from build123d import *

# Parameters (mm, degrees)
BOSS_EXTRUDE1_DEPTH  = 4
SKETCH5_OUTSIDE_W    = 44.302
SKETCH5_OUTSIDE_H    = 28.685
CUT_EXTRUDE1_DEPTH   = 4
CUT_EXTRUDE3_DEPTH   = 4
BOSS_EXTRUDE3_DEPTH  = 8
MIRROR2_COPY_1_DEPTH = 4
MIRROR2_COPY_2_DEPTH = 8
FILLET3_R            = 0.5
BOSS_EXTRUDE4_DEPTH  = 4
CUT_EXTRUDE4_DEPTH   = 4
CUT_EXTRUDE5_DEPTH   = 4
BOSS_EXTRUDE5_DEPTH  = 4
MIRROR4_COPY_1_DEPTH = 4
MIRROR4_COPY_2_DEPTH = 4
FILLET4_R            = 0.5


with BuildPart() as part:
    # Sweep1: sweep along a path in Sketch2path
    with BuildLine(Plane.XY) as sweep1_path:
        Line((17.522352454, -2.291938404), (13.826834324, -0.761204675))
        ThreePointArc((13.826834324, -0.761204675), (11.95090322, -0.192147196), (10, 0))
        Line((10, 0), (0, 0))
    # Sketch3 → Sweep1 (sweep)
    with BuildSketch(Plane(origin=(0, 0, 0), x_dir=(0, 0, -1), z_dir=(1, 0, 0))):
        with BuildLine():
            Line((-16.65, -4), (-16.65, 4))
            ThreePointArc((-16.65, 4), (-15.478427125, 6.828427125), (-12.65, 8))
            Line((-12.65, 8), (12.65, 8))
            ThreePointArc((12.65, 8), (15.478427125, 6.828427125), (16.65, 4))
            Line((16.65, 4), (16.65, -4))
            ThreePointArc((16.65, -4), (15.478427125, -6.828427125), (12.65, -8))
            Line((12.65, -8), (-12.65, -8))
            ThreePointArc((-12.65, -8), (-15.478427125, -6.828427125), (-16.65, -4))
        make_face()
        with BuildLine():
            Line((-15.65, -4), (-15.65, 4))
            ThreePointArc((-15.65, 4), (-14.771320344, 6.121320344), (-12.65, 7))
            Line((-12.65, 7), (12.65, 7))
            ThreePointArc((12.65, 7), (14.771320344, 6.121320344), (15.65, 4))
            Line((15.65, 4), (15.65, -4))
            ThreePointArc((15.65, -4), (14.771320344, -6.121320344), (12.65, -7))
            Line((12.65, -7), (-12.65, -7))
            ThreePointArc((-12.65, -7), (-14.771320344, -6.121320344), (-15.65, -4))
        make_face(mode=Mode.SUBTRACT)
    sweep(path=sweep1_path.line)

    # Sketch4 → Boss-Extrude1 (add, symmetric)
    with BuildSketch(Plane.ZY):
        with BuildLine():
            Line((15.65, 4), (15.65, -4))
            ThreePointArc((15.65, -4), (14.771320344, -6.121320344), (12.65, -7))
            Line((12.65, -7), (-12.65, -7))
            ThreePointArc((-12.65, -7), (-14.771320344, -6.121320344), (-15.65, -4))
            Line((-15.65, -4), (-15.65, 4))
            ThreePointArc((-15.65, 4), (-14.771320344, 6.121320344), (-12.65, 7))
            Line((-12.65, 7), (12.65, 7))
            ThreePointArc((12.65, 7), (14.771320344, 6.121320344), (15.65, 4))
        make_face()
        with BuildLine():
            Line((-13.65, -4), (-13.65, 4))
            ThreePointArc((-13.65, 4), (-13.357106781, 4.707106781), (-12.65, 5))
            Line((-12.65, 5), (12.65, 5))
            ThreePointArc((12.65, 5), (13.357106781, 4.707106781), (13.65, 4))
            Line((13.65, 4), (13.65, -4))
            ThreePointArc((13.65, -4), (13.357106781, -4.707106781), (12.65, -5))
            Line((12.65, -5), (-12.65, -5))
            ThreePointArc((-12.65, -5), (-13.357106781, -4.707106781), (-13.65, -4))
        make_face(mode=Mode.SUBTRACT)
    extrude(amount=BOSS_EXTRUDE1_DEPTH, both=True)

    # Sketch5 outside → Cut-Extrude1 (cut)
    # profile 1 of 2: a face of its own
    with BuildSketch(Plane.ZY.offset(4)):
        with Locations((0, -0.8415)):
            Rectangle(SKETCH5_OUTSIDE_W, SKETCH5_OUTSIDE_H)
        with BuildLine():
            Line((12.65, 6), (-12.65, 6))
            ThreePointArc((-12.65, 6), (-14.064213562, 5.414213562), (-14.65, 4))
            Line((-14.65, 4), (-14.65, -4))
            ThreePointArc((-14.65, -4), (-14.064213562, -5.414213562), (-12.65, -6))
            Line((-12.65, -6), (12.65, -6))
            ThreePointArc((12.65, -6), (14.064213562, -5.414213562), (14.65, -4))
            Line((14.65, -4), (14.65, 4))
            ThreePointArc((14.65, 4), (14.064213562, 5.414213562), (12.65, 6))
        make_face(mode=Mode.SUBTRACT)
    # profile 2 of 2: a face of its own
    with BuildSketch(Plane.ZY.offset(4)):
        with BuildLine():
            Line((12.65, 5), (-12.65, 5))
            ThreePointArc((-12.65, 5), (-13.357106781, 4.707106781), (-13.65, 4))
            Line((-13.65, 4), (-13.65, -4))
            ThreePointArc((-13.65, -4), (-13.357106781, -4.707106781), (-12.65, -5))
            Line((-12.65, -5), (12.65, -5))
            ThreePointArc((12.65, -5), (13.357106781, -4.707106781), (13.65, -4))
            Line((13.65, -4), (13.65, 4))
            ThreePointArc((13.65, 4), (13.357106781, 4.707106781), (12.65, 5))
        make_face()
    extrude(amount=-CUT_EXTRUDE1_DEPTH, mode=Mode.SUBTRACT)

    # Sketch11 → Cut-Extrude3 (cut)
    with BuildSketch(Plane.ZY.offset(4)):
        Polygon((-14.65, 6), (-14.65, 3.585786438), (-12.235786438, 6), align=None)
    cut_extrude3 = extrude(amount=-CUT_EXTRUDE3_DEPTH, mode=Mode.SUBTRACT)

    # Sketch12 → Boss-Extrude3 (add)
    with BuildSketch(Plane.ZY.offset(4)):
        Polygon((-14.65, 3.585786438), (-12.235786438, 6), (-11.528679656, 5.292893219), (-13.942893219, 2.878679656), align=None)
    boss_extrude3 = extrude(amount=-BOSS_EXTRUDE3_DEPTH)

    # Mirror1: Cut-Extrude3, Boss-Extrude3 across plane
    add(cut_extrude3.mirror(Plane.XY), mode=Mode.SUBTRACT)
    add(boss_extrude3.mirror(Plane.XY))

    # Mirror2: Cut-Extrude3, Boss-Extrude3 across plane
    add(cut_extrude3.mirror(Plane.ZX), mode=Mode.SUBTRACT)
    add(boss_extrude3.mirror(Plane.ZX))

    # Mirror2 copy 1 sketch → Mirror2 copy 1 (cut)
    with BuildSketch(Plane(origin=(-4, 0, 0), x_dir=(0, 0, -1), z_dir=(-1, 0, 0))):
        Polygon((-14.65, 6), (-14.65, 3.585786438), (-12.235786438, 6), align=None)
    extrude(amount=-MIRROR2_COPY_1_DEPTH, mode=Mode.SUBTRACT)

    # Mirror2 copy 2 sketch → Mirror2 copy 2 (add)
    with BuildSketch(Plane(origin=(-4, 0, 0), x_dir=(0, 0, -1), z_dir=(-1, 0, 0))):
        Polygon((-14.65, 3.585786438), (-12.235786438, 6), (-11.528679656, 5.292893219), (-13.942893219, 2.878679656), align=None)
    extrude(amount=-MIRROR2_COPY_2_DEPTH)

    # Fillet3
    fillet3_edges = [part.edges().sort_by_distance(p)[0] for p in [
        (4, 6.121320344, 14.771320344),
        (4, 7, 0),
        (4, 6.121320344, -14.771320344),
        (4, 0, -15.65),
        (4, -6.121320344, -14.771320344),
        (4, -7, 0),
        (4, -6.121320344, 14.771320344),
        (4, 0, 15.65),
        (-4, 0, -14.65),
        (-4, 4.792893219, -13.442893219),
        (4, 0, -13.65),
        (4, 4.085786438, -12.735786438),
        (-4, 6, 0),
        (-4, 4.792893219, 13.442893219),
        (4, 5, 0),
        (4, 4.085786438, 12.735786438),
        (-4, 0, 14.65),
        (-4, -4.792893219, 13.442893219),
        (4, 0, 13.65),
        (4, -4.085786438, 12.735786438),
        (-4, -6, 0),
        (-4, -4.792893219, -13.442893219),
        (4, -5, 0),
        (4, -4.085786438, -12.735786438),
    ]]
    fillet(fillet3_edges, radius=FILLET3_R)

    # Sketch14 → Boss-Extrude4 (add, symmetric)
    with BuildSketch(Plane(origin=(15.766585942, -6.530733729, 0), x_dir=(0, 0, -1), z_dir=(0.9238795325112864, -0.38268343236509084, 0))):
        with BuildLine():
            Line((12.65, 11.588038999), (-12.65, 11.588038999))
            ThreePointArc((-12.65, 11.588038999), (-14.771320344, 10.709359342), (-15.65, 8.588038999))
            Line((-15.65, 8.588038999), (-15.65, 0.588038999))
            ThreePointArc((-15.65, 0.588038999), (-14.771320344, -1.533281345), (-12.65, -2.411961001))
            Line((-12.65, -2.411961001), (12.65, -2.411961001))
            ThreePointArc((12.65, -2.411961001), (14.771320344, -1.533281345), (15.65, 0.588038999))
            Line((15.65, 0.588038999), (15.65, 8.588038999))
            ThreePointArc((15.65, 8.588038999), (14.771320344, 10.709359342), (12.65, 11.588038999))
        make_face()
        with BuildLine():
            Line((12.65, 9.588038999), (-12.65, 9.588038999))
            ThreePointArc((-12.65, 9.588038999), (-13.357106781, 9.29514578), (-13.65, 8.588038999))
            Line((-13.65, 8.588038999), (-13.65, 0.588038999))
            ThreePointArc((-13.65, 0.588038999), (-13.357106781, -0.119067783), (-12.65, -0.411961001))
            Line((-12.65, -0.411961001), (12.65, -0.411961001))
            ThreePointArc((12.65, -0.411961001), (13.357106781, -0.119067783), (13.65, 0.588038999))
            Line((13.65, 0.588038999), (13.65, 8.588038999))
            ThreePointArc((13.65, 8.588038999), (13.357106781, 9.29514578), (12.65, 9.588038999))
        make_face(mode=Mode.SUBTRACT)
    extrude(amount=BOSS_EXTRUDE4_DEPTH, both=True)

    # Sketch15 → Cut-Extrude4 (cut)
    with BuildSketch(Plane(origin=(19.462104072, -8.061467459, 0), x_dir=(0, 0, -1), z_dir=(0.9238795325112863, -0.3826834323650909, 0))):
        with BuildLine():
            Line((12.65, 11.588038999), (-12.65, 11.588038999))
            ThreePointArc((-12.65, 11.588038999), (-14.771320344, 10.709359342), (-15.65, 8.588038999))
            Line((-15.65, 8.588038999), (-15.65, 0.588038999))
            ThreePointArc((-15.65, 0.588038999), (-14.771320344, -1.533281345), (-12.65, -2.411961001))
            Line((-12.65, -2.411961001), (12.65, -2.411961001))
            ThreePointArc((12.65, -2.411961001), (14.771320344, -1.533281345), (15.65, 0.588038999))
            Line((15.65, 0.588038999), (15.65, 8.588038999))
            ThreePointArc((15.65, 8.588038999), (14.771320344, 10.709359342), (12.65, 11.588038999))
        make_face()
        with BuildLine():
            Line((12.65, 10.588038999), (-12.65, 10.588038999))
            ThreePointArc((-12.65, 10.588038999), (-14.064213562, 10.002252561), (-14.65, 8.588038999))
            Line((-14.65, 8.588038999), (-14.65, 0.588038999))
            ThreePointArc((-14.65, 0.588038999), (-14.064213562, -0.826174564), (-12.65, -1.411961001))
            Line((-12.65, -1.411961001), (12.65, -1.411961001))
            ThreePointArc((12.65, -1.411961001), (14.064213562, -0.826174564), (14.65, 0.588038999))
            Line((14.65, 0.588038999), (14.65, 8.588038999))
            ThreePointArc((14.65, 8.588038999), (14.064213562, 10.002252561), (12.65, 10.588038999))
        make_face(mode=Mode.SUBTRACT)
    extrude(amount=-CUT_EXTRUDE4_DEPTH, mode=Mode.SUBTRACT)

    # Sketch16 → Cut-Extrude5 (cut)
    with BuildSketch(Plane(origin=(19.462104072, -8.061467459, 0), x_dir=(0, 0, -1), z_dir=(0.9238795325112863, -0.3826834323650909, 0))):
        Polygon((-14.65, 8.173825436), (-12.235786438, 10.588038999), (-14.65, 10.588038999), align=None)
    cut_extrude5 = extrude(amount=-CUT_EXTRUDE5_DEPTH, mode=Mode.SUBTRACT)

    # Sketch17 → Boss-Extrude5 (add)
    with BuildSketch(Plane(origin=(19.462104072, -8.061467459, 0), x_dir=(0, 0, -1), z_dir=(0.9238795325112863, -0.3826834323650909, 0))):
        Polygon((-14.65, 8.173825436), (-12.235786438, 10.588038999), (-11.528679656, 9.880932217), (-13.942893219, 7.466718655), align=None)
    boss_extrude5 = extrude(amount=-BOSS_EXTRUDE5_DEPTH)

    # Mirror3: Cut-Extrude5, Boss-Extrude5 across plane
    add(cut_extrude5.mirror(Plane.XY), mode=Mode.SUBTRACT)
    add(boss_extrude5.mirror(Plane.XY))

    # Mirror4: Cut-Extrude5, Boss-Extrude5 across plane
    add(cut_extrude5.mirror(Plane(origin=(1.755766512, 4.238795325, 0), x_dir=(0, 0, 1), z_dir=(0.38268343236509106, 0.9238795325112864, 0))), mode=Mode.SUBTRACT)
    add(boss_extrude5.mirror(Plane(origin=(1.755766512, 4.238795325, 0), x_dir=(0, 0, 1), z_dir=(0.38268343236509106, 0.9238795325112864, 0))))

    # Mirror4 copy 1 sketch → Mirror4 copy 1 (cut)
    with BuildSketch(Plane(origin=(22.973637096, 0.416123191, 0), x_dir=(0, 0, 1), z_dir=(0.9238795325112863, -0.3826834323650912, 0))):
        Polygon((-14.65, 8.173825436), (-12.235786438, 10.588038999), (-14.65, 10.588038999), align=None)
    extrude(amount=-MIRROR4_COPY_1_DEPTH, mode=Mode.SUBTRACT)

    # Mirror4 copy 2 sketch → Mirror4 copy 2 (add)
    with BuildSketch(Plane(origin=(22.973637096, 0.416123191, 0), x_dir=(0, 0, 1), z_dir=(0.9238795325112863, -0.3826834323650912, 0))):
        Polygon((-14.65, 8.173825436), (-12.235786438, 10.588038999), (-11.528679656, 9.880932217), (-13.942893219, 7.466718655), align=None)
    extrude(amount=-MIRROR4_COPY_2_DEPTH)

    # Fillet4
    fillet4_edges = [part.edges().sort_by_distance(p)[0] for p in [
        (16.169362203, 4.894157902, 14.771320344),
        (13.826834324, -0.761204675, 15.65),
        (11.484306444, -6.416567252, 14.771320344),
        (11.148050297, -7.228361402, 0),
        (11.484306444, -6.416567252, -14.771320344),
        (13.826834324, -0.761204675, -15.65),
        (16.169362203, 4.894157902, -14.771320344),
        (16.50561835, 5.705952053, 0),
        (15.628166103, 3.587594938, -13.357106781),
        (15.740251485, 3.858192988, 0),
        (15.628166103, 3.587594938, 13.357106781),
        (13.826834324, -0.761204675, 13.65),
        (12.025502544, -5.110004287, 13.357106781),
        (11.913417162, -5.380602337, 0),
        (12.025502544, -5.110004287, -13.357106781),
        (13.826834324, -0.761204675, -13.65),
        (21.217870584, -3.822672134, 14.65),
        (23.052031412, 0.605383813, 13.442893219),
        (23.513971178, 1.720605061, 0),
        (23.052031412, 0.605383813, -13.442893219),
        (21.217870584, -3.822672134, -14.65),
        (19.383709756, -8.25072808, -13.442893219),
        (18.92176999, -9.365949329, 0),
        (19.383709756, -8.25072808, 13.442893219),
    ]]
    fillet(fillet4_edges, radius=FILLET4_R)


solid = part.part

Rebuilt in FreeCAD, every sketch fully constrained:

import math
import FreeCAD as App
import Part
import Sketcher
Q = App.Units.Quantity


def edges_at(feature, points):
    """Names of the edges that pass closest to the given points."""
    edges = feature.Shape.Edges
    near = lambda p: min(range(len(edges)), key=lambda i: edges[i].distToShape(Part.Vertex(*p))[0])
    return sorted({f"Edge{near(p) + 1}" for p in points})

doc = App.newDocument("Part")
body = doc.addObject("PartDesign::Body", "Body")

# Sketch on YZ plane
sketch1 = doc.addObject("Sketcher::SketchObject", "Sketch")
body.addObject(sketch1)
sketch1.AttachmentSupport = (doc.YZ_Plane, [""])
sketch1.MapMode = "FlatFace"
sketch1.addGeometry(Part.LineSegment(App.Vector(4, 16.65, 0), App.Vector(-4, 16.65, 0)), False)
sketch1.addGeometry(Part.ArcOfCircle(Part.Circle(App.Vector(-4, 12.65, 0), App.Vector(0, 0, 1), 4), math.radians(90), math.radians(180)), False)
sketch1.addGeometry(Part.LineSegment(App.Vector(-8, 12.65, 0), App.Vector(-8, -12.65, 0)), False)
sketch1.addGeometry(Part.ArcOfCircle(Part.Circle(App.Vector(-4, -12.65, 0), App.Vector(0, 0, 1), 4), math.radians(180), math.radians(270)), False)
sketch1.addGeometry(Part.LineSegment(App.Vector(-4, -16.65, 0), App.Vector(4, -16.65, 0)), False)
sketch1.addGeometry(Part.ArcOfCircle(Part.Circle(App.Vector(4, -12.65, 0), App.Vector(0, 0, 1), 4), math.radians(-90), math.radians(0)), False)
sketch1.addGeometry(Part.LineSegment(App.Vector(8, -12.65, 0), App.Vector(8, 12.65, 0)), False)
sketch1.addGeometry(Part.ArcOfCircle(Part.Circle(App.Vector(4, 12.65, 0), App.Vector(0, 0, 1), 4), math.radians(0), math.radians(90)), False)
sketch1.addGeometry(Part.LineSegment(App.Vector(-4, 15.65, 0), App.Vector(4, 15.65, 0)), False)
sketch1.addGeometry(Part.ArcOfCircle(Part.Circle(App.Vector(4, 12.65, 0), App.Vector(0, 0, 1), 3), math.radians(0), math.radians(90)), False)
sketch1.addGeometry(Part.LineSegment(App.Vector(7, 12.65, 0), App.Vector(7, -12.65, 0)), False)
sketch1.addGeometry(Part.ArcOfCircle(Part.Circle(App.Vector(4, -12.65, 0), App.Vector(0, 0, 1), 3), math.radians(-90), math.radians(0)), False)
sketch1.addGeometry(Part.LineSegment(App.Vector(4, -15.65, 0), App.Vector(-4, -15.65, 0)), False)
sketch1.addGeometry(Part.ArcOfCircle(Part.Circle(App.Vector(-4, -12.65, 0), App.Vector(0, 0, 1), 3), math.radians(180), math.radians(270)), False)
sketch1.addGeometry(Part.LineSegment(App.Vector(-7, -12.65, 0), App.Vector(-7, 12.65, 0)), False)
sketch1.addGeometry(Part.ArcOfCircle(Part.Circle(App.Vector(-4, 12.65, 0), App.Vector(0, 0, 1), 3), math.radians(90), math.radians(180)), False)
sketch1.addConstraint(Sketcher.Constraint("Tangent", 0, 2, 1, 1))
sketch1.addConstraint(Sketcher.Constraint("Tangent", 1, 2, 2, 1))
sketch1.addConstraint(Sketcher.Constraint("Tangent", 2, 2, 3, 1))
sketch1.addConstraint(Sketcher.Constraint("Tangent", 3, 2, 4, 1))
sketch1.addConstraint(Sketcher.Constraint("Tangent", 4, 2, 5, 1))
sketch1.addConstraint(Sketcher.Constraint("Tangent", 5, 2, 6, 1))
sketch1.addConstraint(Sketcher.Constraint("Tangent", 6, 2, 7, 1))
sketch1.addConstraint(Sketcher.Constraint("Tangent", 7, 2, 0, 1))
sketch1.addConstraint(Sketcher.Constraint("Tangent", 8, 2, 9, 2))
sketch1.addConstraint(Sketcher.Constraint("Tangent", 9, 1, 10, 1))
sketch1.addConstraint(Sketcher.Constraint("Tangent", 10, 2, 11, 2))
sketch1.addConstraint(Sketcher.Constraint("Tangent", 11, 1, 12, 1))
sketch1.addConstraint(Sketcher.Constraint("Tangent", 12, 2, 13, 2))
sketch1.addConstraint(Sketcher.Constraint("Tangent", 13, 1, 14, 1))
sketch1.addConstraint(Sketcher.Constraint("Tangent", 14, 2, 15, 2))
sketch1.addConstraint(Sketcher.Constraint("Tangent", 15, 1, 8, 1))
sketch1.addConstraint(Sketcher.Constraint("Horizontal", 0))
sketch1.addConstraint(Sketcher.Constraint("Vertical", 2))
sketch1.addConstraint(Sketcher.Constraint("Horizontal", 4))
sketch1.addConstraint(Sketcher.Constraint("Vertical", 6))
sketch1.addConstraint(Sketcher.Constraint("Horizontal", 8))
sketch1.addConstraint(Sketcher.Constraint("Vertical", 10))
sketch1.addConstraint(Sketcher.Constraint("Horizontal", 12))
sketch1.addConstraint(Sketcher.Constraint("Vertical", 14))
sketch1.addConstraint(Sketcher.Constraint("Coincident", 9, 3, 7, 3))
sketch1.addConstraint(Sketcher.Constraint("Coincident", 11, 3, 5, 3))
sketch1.addConstraint(Sketcher.Constraint("Coincident", 13, 3, 3, 3))
sketch1.addConstraint(Sketcher.Constraint("Equal", 1, 3))
sketch1.addConstraint(Sketcher.Constraint("Equal", 3, 5))
sketch1.addConstraint(Sketcher.Constraint("Equal", 5, 7))
sketch1.addConstraint(Sketcher.Constraint("Equal", 13, 15))
sketch1.addConstraint(Sketcher.Constraint("Symmetric", 1, 3, 5, 3, -1, 1))
sketch1.addConstraint(Sketcher.Constraint("Radius", 1, Q("4 mm")))
sketch1.addConstraint(Sketcher.Constraint("Radius", 9, Q("3 mm")))
sketch1.addConstraint(Sketcher.Constraint("DistanceX", 0, 2, 0, 1, Q("8 mm")))
sketch1.addConstraint(Sketcher.Constraint("DistanceY", 2, 2, 2, 1, Q("25.3 mm")))

# Sketch on XY plane
sketch2 = doc.addObject("Sketcher::SketchObject", "Sketch001")
body.addObject(sketch2)
sketch2.AttachmentSupport = (doc.XY_Plane, [""])
sketch2.MapMode = "FlatFace"
sketch2.addGeometry(Part.LineSegment(App.Vector(17.522352, -2.291938, 0), App.Vector(13.826834, -0.761205, 0)), False)
sketch2.addGeometry(Part.ArcOfCircle(Part.Circle(App.Vector(10, -10, 0), App.Vector(0, 0, 1), 10), math.radians(67.5), math.radians(90)), False)
sketch2.addGeometry(Part.LineSegment(App.Vector(10, 0, 0), App.Vector(0, 0, 0)), False)
sketch2.addConstraint(Sketcher.Constraint("Tangent", 0, 2, 1, 1))
sketch2.addConstraint(Sketcher.Constraint("Tangent", 1, 2, 2, 1))
sketch2.addConstraint(Sketcher.Constraint("Horizontal", 2))
sketch2.addConstraint(Sketcher.Constraint("Coincident", 2, 2, -1, 1))
sketch2.addConstraint(Sketcher.Constraint("Radius", 1, Q("10 mm")))
sketch2.addConstraint(Sketcher.Constraint("DistanceX", 2, 2, 2, 1, Q("10 mm")))
sketch2.addConstraint(Sketcher.Constraint("Distance", 0, Q("4 mm")))
sketch2.addConstraint(Sketcher.Constraint("Angle", 0, Q("157.5 deg")))
doc.recompute()

additivepipe = doc.addObject("PartDesign::AdditivePipe", "AdditivePipe")
body.addObject(additivepipe)
additivepipe.Profile = sketch1
additivepipe.Spine = (sketch2, ["Edge1", "Edge2", "Edge3"])

# Sketch on YZ plane
sketch3 = doc.addObject("Sketcher::SketchObject", "Sketch002")
body.addObject(sketch3)
sketch3.AttachmentSupport = (doc.YZ_Plane, [""])
sketch3.MapMode = "FlatFace"
sketch3.addGeometry(Part.LineSegment(App.Vector(-4, 15.65, 0), App.Vector(4, 15.65, 0)), False)
sketch3.addGeometry(Part.ArcOfCircle(Part.Circle(App.Vector(4, 12.65, 0), App.Vector(0, 0, 1), 3), math.radians(0), math.radians(90)), False)
sketch3.addGeometry(Part.LineSegment(App.Vector(7, 12.65, 0), App.Vector(7, -12.65, 0)), False)
sketch3.addGeometry(Part.ArcOfCircle(Part.Circle(App.Vector(4, -12.65, 0), App.Vector(0, 0, 1), 3), math.radians(-90), math.radians(0)), False)
sketch3.addGeometry(Part.LineSegment(App.Vector(4, -15.65, 0), App.Vector(-4, -15.65, 0)), False)
sketch3.addGeometry(Part.ArcOfCircle(Part.Circle(App.Vector(-4, -12.65, 0), App.Vector(0, 0, 1), 3), math.radians(180), math.radians(270)), False)
sketch3.addGeometry(Part.LineSegment(App.Vector(-7, -12.65, 0), App.Vector(-7, 12.65, 0)), False)
sketch3.addGeometry(Part.ArcOfCircle(Part.Circle(App.Vector(-4, 12.65, 0), App.Vector(0, 0, 1), 3), math.radians(90), math.radians(180)), False)
sketch3.addGeometry(Part.LineSegment(App.Vector(-4, -13.65, 0), App.Vector(4, -13.65, 0)), False)
sketch3.addGeometry(Part.ArcOfCircle(Part.Circle(App.Vector(4, -12.65, 0), App.Vector(0, 0, 1), 1), math.radians(-90), math.radians(0)), False)
sketch3.addGeometry(Part.LineSegment(App.Vector(5, -12.65, 0), App.Vector(5, 12.65, 0)), False)
sketch3.addGeometry(Part.ArcOfCircle(Part.Circle(App.Vector(4, 12.65, 0), App.Vector(0, 0, 1), 1), math.radians(0), math.radians(90)), False)
sketch3.addGeometry(Part.LineSegment(App.Vector(4, 13.65, 0), App.Vector(-4, 13.65, 0)), False)
sketch3.addGeometry(Part.ArcOfCircle(Part.Circle(App.Vector(-4, 12.65, 0), App.Vector(0, 0, 1), 1), math.radians(90), math.radians(180)), False)
sketch3.addGeometry(Part.LineSegment(App.Vector(-5, 12.65, 0), App.Vector(-5, -12.65, 0)), False)
sketch3.addGeometry(Part.ArcOfCircle(Part.Circle(App.Vector(-4, -12.65, 0), App.Vector(0, 0, 1), 1), math.radians(-180), math.radians(-90)), False)
sketch3.addConstraint(Sketcher.Constraint("Tangent", 0, 2, 1, 2))
sketch3.addConstraint(Sketcher.Constraint("Tangent", 1, 1, 2, 1))
sketch3.addConstraint(Sketcher.Constraint("Tangent", 2, 2, 3, 2))
sketch3.addConstraint(Sketcher.Constraint("Tangent", 3, 1, 4, 1))
sketch3.addConstraint(Sketcher.Constraint("Tangent", 4, 2, 5, 2))
sketch3.addConstraint(Sketcher.Constraint("Tangent", 5, 1, 6, 1))
sketch3.addConstraint(Sketcher.Constraint("Tangent", 6, 2, 7, 2))
sketch3.addConstraint(Sketcher.Constraint("Tangent", 7, 1, 0, 1))
sketch3.addConstraint(Sketcher.Constraint("Tangent", 8, 2, 9, 1))
sketch3.addConstraint(Sketcher.Constraint("Tangent", 9, 2, 10, 1))
sketch3.addConstraint(Sketcher.Constraint("Tangent", 10, 2, 11, 1))
sketch3.addConstraint(Sketcher.Constraint("Tangent", 11, 2, 12, 1))
sketch3.addConstraint(Sketcher.Constraint("Tangent", 12, 2, 13, 1))
sketch3.addConstraint(Sketcher.Constraint("Tangent", 13, 2, 14, 1))
sketch3.addConstraint(Sketcher.Constraint("Tangent", 14, 2, 15, 1))
sketch3.addConstraint(Sketcher.Constraint("Tangent", 15, 2, 8, 1))
sketch3.addConstraint(Sketcher.Constraint("Horizontal", 0))
sketch3.addConstraint(Sketcher.Constraint("Vertical", 2))
sketch3.addConstraint(Sketcher.Constraint("Horizontal", 4))
sketch3.addConstraint(Sketcher.Constraint("Vertical", 6))
sketch3.addConstraint(Sketcher.Constraint("Horizontal", 8))
sketch3.addConstraint(Sketcher.Constraint("Vertical", 10))
sketch3.addConstraint(Sketcher.Constraint("Horizontal", 12))
sketch3.addConstraint(Sketcher.Constraint("Vertical", 14))
sketch3.addConstraint(Sketcher.Constraint("Coincident", 9, 3, 3, 3))
sketch3.addConstraint(Sketcher.Constraint("Coincident", 11, 3, 1, 3))
sketch3.addConstraint(Sketcher.Constraint("Coincident", 13, 3, 7, 3))
sketch3.addConstraint(Sketcher.Constraint("Equal", 1, 3))
sketch3.addConstraint(Sketcher.Constraint("Equal", 3, 5))
sketch3.addConstraint(Sketcher.Constraint("Equal", 5, 7))
sketch3.addConstraint(Sketcher.Constraint("Equal", 13, 15))
sketch3.addConstraint(Sketcher.Constraint("Symmetric", 1, 3, 5, 3, -1, 1))
sketch3.addConstraint(Sketcher.Constraint("Radius", 1, Q("3 mm")))
sketch3.addConstraint(Sketcher.Constraint("Radius", 9, Q("1 mm")))
sketch3.addConstraint(Sketcher.Constraint("DistanceX", 0, 1, 0, 2, Q("8 mm")))
sketch3.addConstraint(Sketcher.Constraint("DistanceY", 2, 2, 2, 1, Q("25.3 mm")))
pad1 = doc.addObject("PartDesign::Pad", "Pad")
body.addObject(pad1)
pad1.Profile = sketch3
pad1.Length = 8
pad1.Midplane = True

# Sketch on YZ plane
sketch4 = doc.addObject("Sketcher::SketchObject", "Sketch003")
body.addObject(sketch4)
sketch4.AttachmentSupport = (doc.YZ_Plane, [""])
sketch4.MapMode = "FlatFace"
sketch4.AttachmentOffset = App.Placement(App.Vector(0, 0, -4), App.Rotation())
sketch4.addGeometry(Part.LineSegment(App.Vector(13.501, -22.151, 0), App.Vector(-15.184, -22.151, 0)), False)
sketch4.addGeometry(Part.LineSegment(App.Vector(-15.184, -22.151, 0), App.Vector(-15.184, 22.151, 0)), False)
sketch4.addGeometry(Part.LineSegment(App.Vector(-15.184, 22.151, 0), App.Vector(13.501, 22.151, 0)), False)
sketch4.addGeometry(Part.LineSegment(App.Vector(13.501, 22.151, 0), App.Vector(13.501, -22.151, 0)), False)
sketch4.addGeometry(Part.LineSegment(App.Vector(6, -12.65, 0), App.Vector(6, 12.65, 0)), False)
sketch4.addGeometry(Part.ArcOfCircle(Part.Circle(App.Vector(4, 12.65, 0), App.Vector(0, 0, 1), 2), math.radians(0), math.radians(90)), False)
sketch4.addGeometry(Part.LineSegment(App.Vector(4, 14.65, 0), App.Vector(-4, 14.65, 0)), False)
sketch4.addGeometry(Part.ArcOfCircle(Part.Circle(App.Vector(-4, 12.65, 0), App.Vector(0, 0, 1), 2), math.radians(90), math.radians(180)), False)
sketch4.addGeometry(Part.LineSegment(App.Vector(-6, 12.65, 0), App.Vector(-6, -12.65, 0)), False)
sketch4.addGeometry(Part.ArcOfCircle(Part.Circle(App.Vector(-4, -12.65, 0), App.Vector(0, 0, 1), 2), math.radians(-180), math.radians(-90)), False)
sketch4.addGeometry(Part.LineSegment(App.Vector(-4, -14.65, 0), App.Vector(4, -14.65, 0)), False)
sketch4.addGeometry(Part.ArcOfCircle(Part.Circle(App.Vector(4, -12.65, 0), App.Vector(0, 0, 1), 2), math.radians(-90), math.radians(0)), False)
sketch4.addGeometry(Part.LineSegment(App.Vector(5, 12.65, 0), App.Vector(5, -12.65, 0)), False)
sketch4.addGeometry(Part.ArcOfCircle(Part.Circle(App.Vector(4, -12.65, 0), App.Vector(0, 0, 1), 1), math.radians(-90), math.radians(0)), False)
sketch4.addGeometry(Part.LineSegment(App.Vector(4, -13.65, 0), App.Vector(-4, -13.65, 0)), False)
sketch4.addGeometry(Part.ArcOfCircle(Part.Circle(App.Vector(-4, -12.65, 0), App.Vector(0, 0, 1), 1), math.radians(-180), math.radians(-90)), False)
sketch4.addGeometry(Part.LineSegment(App.Vector(-5, -12.65, 0), App.Vector(-5, 12.65, 0)), False)
sketch4.addGeometry(Part.ArcOfCircle(Part.Circle(App.Vector(-4, 12.65, 0), App.Vector(0, 0, 1), 1), math.radians(90), math.radians(180)), False)
sketch4.addGeometry(Part.LineSegment(App.Vector(-4, 13.65, 0), App.Vector(4, 13.65, 0)), False)
sketch4.addGeometry(Part.ArcOfCircle(Part.Circle(App.Vector(4, 12.65, 0), App.Vector(0, 0, 1), 1), math.radians(0), math.radians(90)), False)
sketch4.addConstraint(Sketcher.Constraint("Coincident", 0, 2, 1, 1))
sketch4.addConstraint(Sketcher.Constraint("Coincident", 1, 2, 2, 1))
sketch4.addConstraint(Sketcher.Constraint("Coincident", 2, 2, 3, 1))
sketch4.addConstraint(Sketcher.Constraint("Coincident", 3, 2, 0, 1))
sketch4.addConstraint(Sketcher.Constraint("Tangent", 4, 2, 5, 1))
sketch4.addConstraint(Sketcher.Constraint("Tangent", 5, 2, 6, 1))
sketch4.addConstraint(Sketcher.Constraint("Tangent", 6, 2, 7, 1))
sketch4.addConstraint(Sketcher.Constraint("Tangent", 7, 2, 8, 1))
sketch4.addConstraint(Sketcher.Constraint("Tangent", 8, 2, 9, 1))
sketch4.addConstraint(Sketcher.Constraint("Tangent", 9, 2, 10, 1))
sketch4.addConstraint(Sketcher.Constraint("Tangent", 10, 2, 11, 1))
sketch4.addConstraint(Sketcher.Constraint("Tangent", 11, 2, 4, 1))
sketch4.addConstraint(Sketcher.Constraint("Tangent", 12, 2, 13, 2))
sketch4.addConstraint(Sketcher.Constraint("Tangent", 13, 1, 14, 1))
sketch4.addConstraint(Sketcher.Constraint("Tangent", 14, 2, 15, 2))
sketch4.addConstraint(Sketcher.Constraint("Tangent", 15, 1, 16, 1))
sketch4.addConstraint(Sketcher.Constraint("Tangent", 16, 2, 17, 2))
sketch4.addConstraint(Sketcher.Constraint("Tangent", 17, 1, 18, 1))
sketch4.addConstraint(Sketcher.Constraint("Tangent", 18, 2, 19, 2))
sketch4.addConstraint(Sketcher.Constraint("Tangent", 19, 1, 12, 1))
sketch4.addConstraint(Sketcher.Constraint("Horizontal", 0))
sketch4.addConstraint(Sketcher.Constraint("Vertical", 1))
sketch4.addConstraint(Sketcher.Constraint("Horizontal", 2))
sketch4.addConstraint(Sketcher.Constraint("Vertical", 3))
sketch4.addConstraint(Sketcher.Constraint("Vertical", 4))
sketch4.addConstraint(Sketcher.Constraint("Horizontal", 6))
sketch4.addConstraint(Sketcher.Constraint("Vertical", 8))
sketch4.addConstraint(Sketcher.Constraint("Horizontal", 10))
sketch4.addConstraint(Sketcher.Constraint("Vertical", 12))
sketch4.addConstraint(Sketcher.Constraint("Horizontal", 14))
sketch4.addConstraint(Sketcher.Constraint("Vertical", 16))
sketch4.addConstraint(Sketcher.Constraint("Horizontal", 18))
sketch4.addConstraint(Sketcher.Constraint("Coincident", 13, 3, 11, 3))
sketch4.addConstraint(Sketcher.Constraint("Coincident", 15, 3, 9, 3))
sketch4.addConstraint(Sketcher.Constraint("Coincident", 17, 3, 7, 3))
sketch4.addConstraint(Sketcher.Constraint("Equal", 5, 7))
sketch4.addConstraint(Sketcher.Constraint("Equal", 7, 9))
sketch4.addConstraint(Sketcher.Constraint("Equal", 9, 11))
sketch4.addConstraint(Sketcher.Constraint("Equal", 17, 19))
sketch4.addConstraint(Sketcher.Constraint("Symmetric", 5, 3, 9, 3, -1, 1))
sketch4.addConstraint(Sketcher.Constraint("Radius", 5, Q("2 mm")))
sketch4.addConstraint(Sketcher.Constraint("Radius", 13, Q("1 mm")))
sketch4.addConstraint(Sketcher.Constraint("DistanceX", 6, 2, 6, 1, Q("8 mm")))
sketch4.addConstraint(Sketcher.Constraint("DistanceY", 4, 1, 4, 2, Q("25.3 mm")))
sketch4.addConstraint(Sketcher.Constraint("DistanceX", 0, 2, 0, 1, Q("28.685 mm")))
sketch4.addConstraint(Sketcher.Constraint("DistanceY", 1, 1, 1, 2, Q("44.302 mm")))
sketch4.addConstraint(Sketcher.Constraint("DistanceX", 0, 2, -1, 1, Q("15.184 mm")))
sketch4.addConstraint(Sketcher.Constraint("DistanceY", 0, 2, -1, 1, Q("22.151 mm")))
pocket1 = doc.addObject("PartDesign::Pocket", "Pocket")
body.addObject(pocket1)
pocket1.Profile = sketch4
pocket1.Length = 4
pocket1.Reversed = True

# Sketch on YZ plane
sketch5 = doc.addObject("Sketcher::SketchObject", "Sketch004")
body.addObject(sketch5)
sketch5.AttachmentSupport = (doc.YZ_Plane, [""])
sketch5.MapMode = "FlatFace"
sketch5.AttachmentOffset = App.Placement(App.Vector(0, 0, -4), App.Rotation())
sketch5.addGeometry(Part.LineSegment(App.Vector(6, -14.65, 0), App.Vector(3.585786, -14.65, 0)), False)
sketch5.addGeometry(Part.LineSegment(App.Vector(3.585786, -14.65, 0), App.Vector(6, -12.235786, 0)), False)
sketch5.addGeometry(Part.LineSegment(App.Vector(6, -12.235786, 0), App.Vector(6, -14.65, 0)), False)
sketch5.addConstraint(Sketcher.Constraint("Coincident", 0, 2, 1, 1))
sketch5.addConstraint(Sketcher.Constraint("Coincident", 1, 2, 2, 1))
sketch5.addConstraint(Sketcher.Constraint("Coincident", 2, 2, 0, 1))
sketch5.addConstraint(Sketcher.Constraint("Horizontal", 0))
sketch5.addConstraint(Sketcher.Constraint("Vertical", 2))
sketch5.addConstraint(Sketcher.Constraint("Equal", 0, 2))
sketch5.addConstraint(Sketcher.Constraint("DistanceX", -1, 1, 1, 2, Q("6 mm")))
sketch5.addConstraint(Sketcher.Constraint("DistanceY", 0, 2, -1, 1, Q("14.65 mm")))
sketch5.addConstraint(Sketcher.Constraint("DistanceX", 0, 2, 0, 1, Q("2.414214 mm")))
pocket2 = doc.addObject("PartDesign::Pocket", "Pocket001")
body.addObject(pocket2)
pocket2.Profile = sketch5
pocket2.Length = 4
pocket2.Reversed = True

# Sketch on YZ plane
sketch6 = doc.addObject("Sketcher::SketchObject", "Sketch005")
body.addObject(sketch6)
sketch6.AttachmentSupport = (doc.YZ_Plane, [""])
sketch6.MapMode = "FlatFace"
sketch6.AttachmentOffset = App.Placement(App.Vector(0, 0, -4), App.Rotation())
sketch6.addGeometry(Part.LineSegment(App.Vector(6, -12.235786, 0), App.Vector(3.585786, -14.65, 0)), False)
sketch6.addGeometry(Part.LineSegment(App.Vector(3.585786, -14.65, 0), App.Vector(2.87868, -13.942893, 0)), False)
sketch6.addGeometry(Part.LineSegment(App.Vector(2.87868, -13.942893, 0), App.Vector(5.292893, -11.52868, 0)), False)
sketch6.addGeometry(Part.LineSegment(App.Vector(5.292893, -11.52868, 0), App.Vector(6, -12.235786, 0)), False)
sketch6.addConstraint(Sketcher.Constraint("Coincident", 0, 2, 1, 1))
sketch6.addConstraint(Sketcher.Constraint("Coincident", 1, 2, 2, 1))
sketch6.addConstraint(Sketcher.Constraint("Coincident", 2, 2, 3, 1))
sketch6.addConstraint(Sketcher.Constraint("Coincident", 3, 2, 0, 1))
sketch6.addConstraint(Sketcher.Constraint("Perpendicular", 0, 1))
sketch6.addConstraint(Sketcher.Constraint("Perpendicular", 1, 2))
sketch6.addConstraint(Sketcher.Constraint("Perpendicular", 2, 3))
sketch6.addConstraint(Sketcher.Constraint("Angle", 0, Q("-135 deg")))
sketch6.addConstraint(Sketcher.Constraint("Distance", 1, Q("1 mm")))
sketch6.addConstraint(Sketcher.Constraint("DistanceX", -1, 1, 3, 2, Q("6 mm")))
sketch6.addConstraint(Sketcher.Constraint("DistanceY", 0, 2, -1, 1, Q("14.65 mm")))
sketch6.addConstraint(Sketcher.Constraint("DistanceX", -1, 1, 1, 2, Q("2.87868 mm")))
pad2 = doc.addObject("PartDesign::Pad", "Pad001")
body.addObject(pad2)
pad2.Profile = sketch6
pad2.Length = 8
doc.recompute()

mirrored = doc.addObject("PartDesign::Mirrored", "Mirrored")
body.addObject(mirrored)
mirrored.Originals = [pocket2, pad2]
mirrored.MirrorPlane = (doc.XY_Plane, [""])
body.Tip = mirrored
doc.recompute()

mirrored2 = doc.addObject("PartDesign::Mirrored", "Mirrored001")
body.addObject(mirrored2)
mirrored2.Originals = [pocket2, pad2]
mirrored2.MirrorPlane = (doc.XZ_Plane, [""])
body.Tip = mirrored2

# Sketch on YZ plane
sketch7 = doc.addObject("Sketcher::SketchObject", "Sketch006")
body.addObject(sketch7)
sketch7.AttachmentSupport = (doc.YZ_Plane, [""])
sketch7.MapMode = "FlatFace"
sketch7.AttachmentOffset = App.Placement(App.Vector(0, 0, -4), App.Rotation())
sketch7.addGeometry(Part.LineSegment(App.Vector(-6, 14.65, 0), App.Vector(-3.585786, 14.65, 0)), False)
sketch7.addGeometry(Part.LineSegment(App.Vector(-3.585786, 14.65, 0), App.Vector(-6, 12.235786, 0)), False)
sketch7.addGeometry(Part.LineSegment(App.Vector(-6, 12.235786, 0), App.Vector(-6, 14.65, 0)), False)
sketch7.addConstraint(Sketcher.Constraint("Coincident", 0, 2, 1, 1))
sketch7.addConstraint(Sketcher.Constraint("Coincident", 1, 2, 2, 1))
sketch7.addConstraint(Sketcher.Constraint("Coincident", 2, 2, 0, 1))
sketch7.addConstraint(Sketcher.Constraint("Horizontal", 0))
sketch7.addConstraint(Sketcher.Constraint("Vertical", 2))
sketch7.addConstraint(Sketcher.Constraint("Equal", 0, 2))
sketch7.addConstraint(Sketcher.Constraint("DistanceX", 1, 2, -1, 1, Q("6 mm")))
sketch7.addConstraint(Sketcher.Constraint("DistanceY", -1, 1, 0, 2, Q("14.65 mm")))
sketch7.addConstraint(Sketcher.Constraint("DistanceX", 0, 1, 0, 2, Q("2.414214 mm")))
pocket3 = doc.addObject("PartDesign::Pocket", "Pocket002")
body.addObject(pocket3)
pocket3.Profile = sketch7
pocket3.Length = 4
pocket3.Reversed = True

# Sketch on YZ plane
sketch8 = doc.addObject("Sketcher::SketchObject", "Sketch007")
body.addObject(sketch8)
sketch8.AttachmentSupport = (doc.YZ_Plane, [""])
sketch8.MapMode = "FlatFace"
sketch8.AttachmentOffset = App.Placement(App.Vector(0, 0, -4), App.Rotation())
sketch8.addGeometry(Part.LineSegment(App.Vector(-6, 12.235786, 0), App.Vector(-3.585786, 14.65, 0)), False)
sketch8.addGeometry(Part.LineSegment(App.Vector(-3.585786, 14.65, 0), App.Vector(-2.87868, 13.942893, 0)), False)
sketch8.addGeometry(Part.LineSegment(App.Vector(-2.87868, 13.942893, 0), App.Vector(-5.292893, 11.52868, 0)), False)
sketch8.addGeometry(Part.LineSegment(App.Vector(-5.292893, 11.52868, 0), App.Vector(-6, 12.235786, 0)), False)
sketch8.addConstraint(Sketcher.Constraint("Coincident", 0, 2, 1, 1))
sketch8.addConstraint(Sketcher.Constraint("Coincident", 1, 2, 2, 1))
sketch8.addConstraint(Sketcher.Constraint("Coincident", 2, 2, 3, 1))
sketch8.addConstraint(Sketcher.Constraint("Coincident", 3, 2, 0, 1))
sketch8.addConstraint(Sketcher.Constraint("Perpendicular", 0, 1))
sketch8.addConstraint(Sketcher.Constraint("Perpendicular", 1, 2))
sketch8.addConstraint(Sketcher.Constraint("Perpendicular", 2, 3))
sketch8.addConstraint(Sketcher.Constraint("Angle", 0, Q("45 deg")))
sketch8.addConstraint(Sketcher.Constraint("Distance", 1, Q("1 mm")))
sketch8.addConstraint(Sketcher.Constraint("DistanceX", 3, 2, -1, 1, Q("6 mm")))
sketch8.addConstraint(Sketcher.Constraint("DistanceY", -1, 1, 0, 2, Q("14.65 mm")))
sketch8.addConstraint(Sketcher.Constraint("DistanceX", 1, 2, -1, 1, Q("2.87868 mm")))
pad3 = doc.addObject("PartDesign::Pad", "Pad002")
body.addObject(pad3)
pad3.Profile = sketch8
pad3.Length = 8
doc.recompute()

fillet = doc.addObject("PartDesign::Fillet", "Fillet")
body.addObject(fillet)
fillet.Base = (pad3, edges_at(pad3, [
    (4, 6.121, 14.771),
    (4, 7, 0),
    (4, 6.121, -14.771),
    (4, 0, -15.65),
    (4, -6.121, -14.771),
    (4, -7, 0),
    (4, -6.121, 14.771),
    (4, 0, 15.65),
    (-4, 0, -14.65),
    (-4, 4.793, -13.443),
    (4, 0, -13.65),
    (4, 4.086, -12.736),
    (-4, 6, 0),
    (-4, 4.793, 13.443),
    (4, 5, 0),
    (4, 4.086, 12.736),
    (-4, 0, 14.65),
    (-4, -4.793, 13.443),
    (4, 0, 13.65),
    (4, -4.086, 12.736),
    (-4, -6, 0),
    (-4, -4.793, -13.443),
    (4, -5, 0),
    (4, -4.086, -12.736),
]))
fillet.Radius = 0.5

# Sketch on an angled plane
sketch9 = doc.addObject("Sketcher::SketchObject", "Sketch008")
body.addObject(sketch9)
sketch9.Placement = App.Placement(App.Vector(15.766586, -6.530734, 0), App.Rotation(App.Vector(0, 0, -1), App.Vector(0.382683432, 0.923879533, 0), App.Vector(0.923879533, -0.382683432, 0), "ZXY"))
sketch9.addGeometry(Part.LineSegment(App.Vector(12.65, 11.588039, 0), App.Vector(-12.65, 11.588039, 0)), False)
sketch9.addGeometry(Part.ArcOfCircle(Part.Circle(App.Vector(-12.65, 8.588039, 0), App.Vector(0, 0, 1), 3), math.radians(90), math.radians(180)), False)
sketch9.addGeometry(Part.LineSegment(App.Vector(-15.65, 8.588039, 0), App.Vector(-15.65, 0.588039, 0)), False)
sketch9.addGeometry(Part.ArcOfCircle(Part.Circle(App.Vector(-12.65, 0.588039, 0), App.Vector(0, 0, 1), 3), math.radians(180), math.radians(270)), False)
sketch9.addGeometry(Part.LineSegment(App.Vector(-12.65, -2.411961, 0), App.Vector(12.65, -2.411961, 0)), False)
sketch9.addGeometry(Part.ArcOfCircle(Part.Circle(App.Vector(12.65, 0.588039, 0), App.Vector(0, 0, 1), 3), math.radians(-90), math.radians(0)), False)
sketch9.addGeometry(Part.LineSegment(App.Vector(15.65, 0.588039, 0), App.Vector(15.65, 8.588039, 0)), False)
sketch9.addGeometry(Part.ArcOfCircle(Part.Circle(App.Vector(12.65, 8.588039, 0), App.Vector(0, 0, 1), 3), math.radians(0), math.radians(90)), False)
sketch9.addGeometry(Part.LineSegment(App.Vector(-12.65, 9.588039, 0), App.Vector(12.65, 9.588039, 0)), False)
sketch9.addGeometry(Part.ArcOfCircle(Part.Circle(App.Vector(12.65, 8.588039, 0), App.Vector(0, 0, 1), 1), math.radians(0), math.radians(90)), False)
sketch9.addGeometry(Part.LineSegment(App.Vector(13.65, 8.588039, 0), App.Vector(13.65, 0.588039, 0)), False)
sketch9.addGeometry(Part.ArcOfCircle(Part.Circle(App.Vector(12.65, 0.588039, 0), App.Vector(0, 0, 1), 1), math.radians(-90), math.radians(0)), False)
sketch9.addGeometry(Part.LineSegment(App.Vector(12.65, -0.411961, 0), App.Vector(-12.65, -0.411961, 0)), False)
sketch9.addGeometry(Part.ArcOfCircle(Part.Circle(App.Vector(-12.65, 0.588039, 0), App.Vector(0, 0, 1), 1), math.radians(180), math.radians(270)), False)
sketch9.addGeometry(Part.LineSegment(App.Vector(-13.65, 0.588039, 0), App.Vector(-13.65, 8.588039, 0)), False)
sketch9.addGeometry(Part.ArcOfCircle(Part.Circle(App.Vector(-12.65, 8.588039, 0), App.Vector(0, 0, 1), 1), math.radians(90), math.radians(180)), False)
sketch9.addConstraint(Sketcher.Constraint("Tangent", 0, 2, 1, 1))
sketch9.addConstraint(Sketcher.Constraint("Tangent", 1, 2, 2, 1))
sketch9.addConstraint(Sketcher.Constraint("Tangent", 2, 2, 3, 1))
sketch9.addConstraint(Sketcher.Constraint("Tangent", 3, 2, 4, 1))
sketch9.addConstraint(Sketcher.Constraint("Tangent", 4, 2, 5, 1))
sketch9.addConstraint(Sketcher.Constraint("Tangent", 5, 2, 6, 1))
sketch9.addConstraint(Sketcher.Constraint("Tangent", 6, 2, 7, 1))
sketch9.addConstraint(Sketcher.Constraint("Tangent", 7, 2, 0, 1))
sketch9.addConstraint(Sketcher.Constraint("Tangent", 8, 2, 9, 2))
sketch9.addConstraint(Sketcher.Constraint("Tangent", 9, 1, 10, 1))
sketch9.addConstraint(Sketcher.Constraint("Tangent", 10, 2, 11, 2))
sketch9.addConstraint(Sketcher.Constraint("Tangent", 11, 1, 12, 1))
sketch9.addConstraint(Sketcher.Constraint("Tangent", 12, 2, 13, 2))
sketch9.addConstraint(Sketcher.Constraint("Tangent", 13, 1, 14, 1))
sketch9.addConstraint(Sketcher.Constraint("Tangent", 14, 2, 15, 2))
sketch9.addConstraint(Sketcher.Constraint("Tangent", 15, 1, 8, 1))
sketch9.addConstraint(Sketcher.Constraint("Horizontal", 0))
sketch9.addConstraint(Sketcher.Constraint("Vertical", 2))
sketch9.addConstraint(Sketcher.Constraint("Horizontal", 4))
sketch9.addConstraint(Sketcher.Constraint("Vertical", 6))
sketch9.addConstraint(Sketcher.Constraint("Horizontal", 8))
sketch9.addConstraint(Sketcher.Constraint("Vertical", 10))
sketch9.addConstraint(Sketcher.Constraint("Horizontal", 12))
sketch9.addConstraint(Sketcher.Constraint("Vertical", 14))
sketch9.addConstraint(Sketcher.Constraint("Coincident", 9, 3, 7, 3))
sketch9.addConstraint(Sketcher.Constraint("Coincident", 11, 3, 5, 3))
sketch9.addConstraint(Sketcher.Constraint("Coincident", 13, 3, 3, 3))
sketch9.addConstraint(Sketcher.Constraint("Equal", 1, 3))
sketch9.addConstraint(Sketcher.Constraint("Equal", 3, 5))
sketch9.addConstraint(Sketcher.Constraint("Equal", 5, 7))
sketch9.addConstraint(Sketcher.Constraint("Equal", 13, 15))
sketch9.addConstraint(Sketcher.Constraint("Radius", 1, Q("3 mm")))
sketch9.addConstraint(Sketcher.Constraint("Radius", 9, Q("1 mm")))
sketch9.addConstraint(Sketcher.Constraint("DistanceY", 2, 2, 2, 1, Q("8 mm")))
sketch9.addConstraint(Sketcher.Constraint("DistanceX", 0, 2, 0, 1, Q("25.3 mm")))
sketch9.addConstraint(Sketcher.Constraint("DistanceX", 1, 3, -1, 1, Q("12.65 mm")))
sketch9.addConstraint(Sketcher.Constraint("DistanceY", -1, 1, 1, 3, Q("8.588039 mm")))
pad4 = doc.addObject("PartDesign::Pad", "Pad003")
body.addObject(pad4)
pad4.Profile = sketch9
pad4.Length = 8
pad4.Midplane = True

# Sketch on an angled plane
sketch10 = doc.addObject("Sketcher::SketchObject", "Sketch009")
body.addObject(sketch10)
sketch10.Placement = App.Placement(App.Vector(19.462104, -8.061467, 0), App.Rotation(App.Vector(0, 0, -1), App.Vector(0.382683432, 0.923879533, 0), App.Vector(0.923879533, -0.382683432, 0), "ZXY"))
sketch10.addGeometry(Part.LineSegment(App.Vector(12.65, 11.588039, 0), App.Vector(-12.65, 11.588039, 0)), False)
sketch10.addGeometry(Part.ArcOfCircle(Part.Circle(App.Vector(-12.65, 8.588039, 0), App.Vector(0, 0, 1), 3), math.radians(90), math.radians(180)), False)
sketch10.addGeometry(Part.LineSegment(App.Vector(-15.65, 8.588039, 0), App.Vector(-15.65, 0.588039, 0)), False)
sketch10.addGeometry(Part.ArcOfCircle(Part.Circle(App.Vector(-12.65, 0.588039, 0), App.Vector(0, 0, 1), 3), math.radians(180), math.radians(270)), False)
sketch10.addGeometry(Part.LineSegment(App.Vector(-12.65, -2.411961, 0), App.Vector(12.65, -2.411961, 0)), False)
sketch10.addGeometry(Part.ArcOfCircle(Part.Circle(App.Vector(12.65, 0.588039, 0), App.Vector(0, 0, 1), 3), math.radians(-90), math.radians(0)), False)
sketch10.addGeometry(Part.LineSegment(App.Vector(15.65, 0.588039, 0), App.Vector(15.65, 8.588039, 0)), False)
sketch10.addGeometry(Part.ArcOfCircle(Part.Circle(App.Vector(12.65, 8.588039, 0), App.Vector(0, 0, 1), 3), math.radians(0), math.radians(90)), False)
sketch10.addGeometry(Part.LineSegment(App.Vector(-12.65, 10.588039, 0), App.Vector(12.65, 10.588039, 0)), False)
sketch10.addGeometry(Part.ArcOfCircle(Part.Circle(App.Vector(12.65, 8.588039, 0), App.Vector(0, 0, 1), 2), math.radians(0), math.radians(90)), False)
sketch10.addGeometry(Part.LineSegment(App.Vector(14.65, 8.588039, 0), App.Vector(14.65, 0.588039, 0)), False)
sketch10.addGeometry(Part.ArcOfCircle(Part.Circle(App.Vector(12.65, 0.588039, 0), App.Vector(0, 0, 1), 2), math.radians(-90), math.radians(0)), False)
sketch10.addGeometry(Part.LineSegment(App.Vector(12.65, -1.411961, 0), App.Vector(-12.65, -1.411961, 0)), False)
sketch10.addGeometry(Part.ArcOfCircle(Part.Circle(App.Vector(-12.65, 0.588039, 0), App.Vector(0, 0, 1), 2), math.radians(180), math.radians(270)), False)
sketch10.addGeometry(Part.LineSegment(App.Vector(-14.65, 0.588039, 0), App.Vector(-14.65, 8.588039, 0)), False)
sketch10.addGeometry(Part.ArcOfCircle(Part.Circle(App.Vector(-12.65, 8.588039, 0), App.Vector(0, 0, 1), 2), math.radians(90), math.radians(180)), False)
sketch10.addConstraint(Sketcher.Constraint("Tangent", 0, 2, 1, 1))
sketch10.addConstraint(Sketcher.Constraint("Tangent", 1, 2, 2, 1))
sketch10.addConstraint(Sketcher.Constraint("Tangent", 2, 2, 3, 1))
sketch10.addConstraint(Sketcher.Constraint("Tangent", 3, 2, 4, 1))
sketch10.addConstraint(Sketcher.Constraint("Tangent", 4, 2, 5, 1))
sketch10.addConstraint(Sketcher.Constraint("Tangent", 5, 2, 6, 1))
sketch10.addConstraint(Sketcher.Constraint("Tangent", 6, 2, 7, 1))
sketch10.addConstraint(Sketcher.Constraint("Tangent", 7, 2, 0, 1))
sketch10.addConstraint(Sketcher.Constraint("Tangent", 8, 2, 9, 2))
sketch10.addConstraint(Sketcher.Constraint("Tangent", 9, 1, 10, 1))
sketch10.addConstraint(Sketcher.Constraint("Tangent", 10, 2, 11, 2))
sketch10.addConstraint(Sketcher.Constraint("Tangent", 11, 1, 12, 1))
sketch10.addConstraint(Sketcher.Constraint("Tangent", 12, 2, 13, 2))
sketch10.addConstraint(Sketcher.Constraint("Tangent", 13, 1, 14, 1))
sketch10.addConstraint(Sketcher.Constraint("Tangent", 14, 2, 15, 2))
sketch10.addConstraint(Sketcher.Constraint("Tangent", 15, 1, 8, 1))
sketch10.addConstraint(Sketcher.Constraint("Horizontal", 0))
sketch10.addConstraint(Sketcher.Constraint("Vertical", 2))
sketch10.addConstraint(Sketcher.Constraint("Horizontal", 4))
sketch10.addConstraint(Sketcher.Constraint("Vertical", 6))
sketch10.addConstraint(Sketcher.Constraint("Horizontal", 8))
sketch10.addConstraint(Sketcher.Constraint("Vertical", 10))
sketch10.addConstraint(Sketcher.Constraint("Horizontal", 12))
sketch10.addConstraint(Sketcher.Constraint("Vertical", 14))
sketch10.addConstraint(Sketcher.Constraint("Coincident", 9, 3, 7, 3))
sketch10.addConstraint(Sketcher.Constraint("Coincident", 11, 3, 5, 3))
sketch10.addConstraint(Sketcher.Constraint("Coincident", 13, 3, 3, 3))
sketch10.addConstraint(Sketcher.Constraint("Equal", 1, 3))
sketch10.addConstraint(Sketcher.Constraint("Equal", 3, 5))
sketch10.addConstraint(Sketcher.Constraint("Equal", 5, 7))
sketch10.addConstraint(Sketcher.Constraint("Equal", 13, 15))
sketch10.addConstraint(Sketcher.Constraint("Radius", 1, Q("3 mm")))
sketch10.addConstraint(Sketcher.Constraint("Radius", 9, Q("2 mm")))
sketch10.addConstraint(Sketcher.Constraint("DistanceY", 2, 2, 2, 1, Q("8 mm")))
sketch10.addConstraint(Sketcher.Constraint("DistanceX", 0, 2, 0, 1, Q("25.3 mm")))
sketch10.addConstraint(Sketcher.Constraint("DistanceX", 1, 3, -1, 1, Q("12.65 mm")))
sketch10.addConstraint(Sketcher.Constraint("DistanceY", -1, 1, 1, 3, Q("8.588039 mm")))
pocket4 = doc.addObject("PartDesign::Pocket", "Pocket003")
body.addObject(pocket4)
pocket4.Profile = sketch10
pocket4.Length = 4

# Sketch on an angled plane
sketch11 = doc.addObject("Sketcher::SketchObject", "Sketch010")
body.addObject(sketch11)
sketch11.Placement = App.Placement(App.Vector(19.462104, -8.061467, 0), App.Rotation(App.Vector(0, 0, -1), App.Vector(0.382683432, 0.923879533, 0), App.Vector(0.923879533, -0.382683432, 0), "ZXY"))
sketch11.addGeometry(Part.LineSegment(App.Vector(-14.65, 8.173825, 0), App.Vector(-12.235786, 10.588039, 0)), False)
sketch11.addGeometry(Part.LineSegment(App.Vector(-12.235786, 10.588039, 0), App.Vector(-14.65, 10.588039, 0)), False)
sketch11.addGeometry(Part.LineSegment(App.Vector(-14.65, 10.588039, 0), App.Vector(-14.65, 8.173825, 0)), False)
sketch11.addConstraint(Sketcher.Constraint("Coincident", 0, 2, 1, 1))
sketch11.addConstraint(Sketcher.Constraint("Coincident", 1, 2, 2, 1))
sketch11.addConstraint(Sketcher.Constraint("Coincident", 2, 2, 0, 1))
sketch11.addConstraint(Sketcher.Constraint("Horizontal", 1))
sketch11.addConstraint(Sketcher.Constraint("Vertical", 2))
sketch11.addConstraint(Sketcher.Constraint("Equal", 1, 2))
sketch11.addConstraint(Sketcher.Constraint("DistanceX", 1, 2, -1, 1, Q("14.65 mm")))
sketch11.addConstraint(Sketcher.Constraint("DistanceX", 1, 2, 1, 1, Q("2.414214 mm")))
sketch11.addConstraint(Sketcher.Constraint("DistanceY", -1, 1, 0, 2, Q("10.588039 mm")))
pocket5 = doc.addObject("PartDesign::Pocket", "Pocket004")
body.addObject(pocket5)
pocket5.Profile = sketch11
pocket5.Length = 4

# Sketch on an angled plane
sketch12 = doc.addObject("Sketcher::SketchObject", "Sketch011")
body.addObject(sketch12)
sketch12.Placement = App.Placement(App.Vector(19.462104, -8.061467, 0), App.Rotation(App.Vector(0, 0, -1), App.Vector(0.382683432, 0.923879533, 0), App.Vector(0.923879533, -0.382683432, 0), "ZXY"))
sketch12.addGeometry(Part.LineSegment(App.Vector(-12.235786, 10.588039, 0), App.Vector(-14.65, 8.173825, 0)), False)
sketch12.addGeometry(Part.LineSegment(App.Vector(-14.65, 8.173825, 0), App.Vector(-13.942893, 7.466719, 0)), False)
sketch12.addGeometry(Part.LineSegment(App.Vector(-13.942893, 7.466719, 0), App.Vector(-11.52868, 9.880932, 0)), False)
sketch12.addGeometry(Part.LineSegment(App.Vector(-11.52868, 9.880932, 0), App.Vector(-12.235786, 10.588039, 0)), False)
sketch12.addConstraint(Sketcher.Constraint("Coincident", 0, 2, 1, 1))
sketch12.addConstraint(Sketcher.Constraint("Coincident", 1, 2, 2, 1))
sketch12.addConstraint(Sketcher.Constraint("Coincident", 2, 2, 3, 1))
sketch12.addConstraint(Sketcher.Constraint("Coincident", 3, 2, 0, 1))
sketch12.addConstraint(Sketcher.Constraint("Perpendicular", 0, 1))
sketch12.addConstraint(Sketcher.Constraint("Perpendicular", 1, 2))
sketch12.addConstraint(Sketcher.Constraint("Perpendicular", 2, 3))
sketch12.addConstraint(Sketcher.Constraint("Angle", 0, Q("-135 deg")))
sketch12.addConstraint(Sketcher.Constraint("Distance", 1, Q("1 mm")))
sketch12.addConstraint(Sketcher.Constraint("DistanceX", 0, 2, -1, 1, Q("14.65 mm")))
sketch12.addConstraint(Sketcher.Constraint("DistanceY", -1, 1, 1, 2, Q("7.466719 mm")))
sketch12.addConstraint(Sketcher.Constraint("DistanceX", 2, 2, -1, 1, Q("11.52868 mm")))
pad5 = doc.addObject("PartDesign::Pad", "Pad004")
body.addObject(pad5)
pad5.Profile = sketch12
pad5.Length = 4
pad5.Reversed = True
doc.recompute()

mirrored3 = doc.addObject("PartDesign::Mirrored", "Mirrored002")
body.addObject(mirrored3)
mirrored3.Originals = [pocket5, pad5]
mirrored3.MirrorPlane = (doc.XY_Plane, [""])
body.Tip = mirrored3
doc.recompute()

datumplane = doc.addObject("PartDesign::Plane", "DatumPlane")
body.addObject(datumplane)
datumplane.Placement = App.Placement(App.Vector(1.755767, 4.238795, 0), App.Rotation(App.Vector(0.923879533, -0.382683432, 0), App.Vector(0, 0, -1), App.Vector(0.382683432, 0.923879533, 0), "ZXY"))
mirrored4 = doc.addObject("PartDesign::Mirrored", "Mirrored003")
body.addObject(mirrored4)
mirrored4.Originals = [pocket5, pad5]
mirrored4.MirrorPlane = (datumplane, [""])
body.Tip = mirrored4

# Sketch on an angled plane
sketch13 = doc.addObject("Sketcher::SketchObject", "Sketch012")
body.addObject(sketch13)
sketch13.Placement = App.Placement(App.Vector(22.973637, 0.416123, 0), App.Rotation(App.Vector(0, 0, 1), App.Vector(-0.382683432, -0.923879533, 0), App.Vector(0.923879533, -0.382683432, 0), "ZXY"))
sketch13.addGeometry(Part.LineSegment(App.Vector(-14.65, 8.173825, 0), App.Vector(-12.235786, 10.588039, 0)), False)
sketch13.addGeometry(Part.LineSegment(App.Vector(-12.235786, 10.588039, 0), App.Vector(-14.65, 10.588039, 0)), False)
sketch13.addGeometry(Part.LineSegment(App.Vector(-14.65, 10.588039, 0), App.Vector(-14.65, 8.173825, 0)), False)
sketch13.addConstraint(Sketcher.Constraint("Coincident", 0, 2, 1, 1))
sketch13.addConstraint(Sketcher.Constraint("Coincident", 1, 2, 2, 1))
sketch13.addConstraint(Sketcher.Constraint("Coincident", 2, 2, 0, 1))
sketch13.addConstraint(Sketcher.Constraint("Horizontal", 1))
sketch13.addConstraint(Sketcher.Constraint("Vertical", 2))
sketch13.addConstraint(Sketcher.Constraint("Equal", 1, 2))
sketch13.addConstraint(Sketcher.Constraint("DistanceX", 1, 2, -1, 1, Q("14.65 mm")))
sketch13.addConstraint(Sketcher.Constraint("DistanceX", 1, 2, 1, 1, Q("2.414214 mm")))
sketch13.addConstraint(Sketcher.Constraint("DistanceY", -1, 1, 0, 2, Q("10.588039 mm")))
pocket6 = doc.addObject("PartDesign::Pocket", "Pocket005")
body.addObject(pocket6)
pocket6.Profile = sketch13
pocket6.Length = 4

# Sketch on an angled plane
sketch14 = doc.addObject("Sketcher::SketchObject", "Sketch013")
body.addObject(sketch14)
sketch14.Placement = App.Placement(App.Vector(22.973637, 0.416123, 0), App.Rotation(App.Vector(0, 0, 1), App.Vector(-0.382683432, -0.923879533, 0), App.Vector(0.923879533, -0.382683432, 0), "ZXY"))
sketch14.addGeometry(Part.LineSegment(App.Vector(-12.235786, 10.588039, 0), App.Vector(-14.65, 8.173825, 0)), False)
sketch14.addGeometry(Part.LineSegment(App.Vector(-14.65, 8.173825, 0), App.Vector(-13.942893, 7.466719, 0)), False)
sketch14.addGeometry(Part.LineSegment(App.Vector(-13.942893, 7.466719, 0), App.Vector(-11.52868, 9.880932, 0)), False)
sketch14.addGeometry(Part.LineSegment(App.Vector(-11.52868, 9.880932, 0), App.Vector(-12.235786, 10.588039, 0)), False)
sketch14.addConstraint(Sketcher.Constraint("Coincident", 0, 2, 1, 1))
sketch14.addConstraint(Sketcher.Constraint("Coincident", 1, 2, 2, 1))
sketch14.addConstraint(Sketcher.Constraint("Coincident", 2, 2, 3, 1))
sketch14.addConstraint(Sketcher.Constraint("Coincident", 3, 2, 0, 1))
sketch14.addConstraint(Sketcher.Constraint("Perpendicular", 0, 1))
sketch14.addConstraint(Sketcher.Constraint("Perpendicular", 1, 2))
sketch14.addConstraint(Sketcher.Constraint("Perpendicular", 2, 3))
sketch14.addConstraint(Sketcher.Constraint("Angle", 0, Q("-135 deg")))
sketch14.addConstraint(Sketcher.Constraint("Distance", 1, Q("1 mm")))
sketch14.addConstraint(Sketcher.Constraint("DistanceX", 0, 2, -1, 1, Q("14.65 mm")))
sketch14.addConstraint(Sketcher.Constraint("DistanceY", -1, 1, 1, 2, Q("7.466719 mm")))
sketch14.addConstraint(Sketcher.Constraint("DistanceX", 2, 2, -1, 1, Q("11.52868 mm")))
pad6 = doc.addObject("PartDesign::Pad", "Pad005")
body.addObject(pad6)
pad6.Profile = sketch14
pad6.Length = 4
pad6.Reversed = True
doc.recompute()

fillet2 = doc.addObject("PartDesign::Fillet", "Fillet001")
body.addObject(fillet2)
fillet2.Base = (pad6, edges_at(pad6, [
    (16.169, 4.894, 14.771),
    (13.827, -0.761, 15.65),
    (11.484, -6.417, 14.771),
    (11.148, -7.228, 0),
    (11.484, -6.417, -14.771),
    (13.827, -0.761, -15.65),
    (16.169, 4.894, -14.771),
    (16.506, 5.706, 0),
    (15.628, 3.588, -13.357),
    (15.74, 3.858, 0),
    (15.628, 3.588, 13.357),
    (13.827, -0.761, 13.65),
    (12.026, -5.11, 13.357),
    (11.913, -5.381, 0),
    (12.026, -5.11, -13.357),
    (13.827, -0.761, -13.65),
    (21.218, -3.823, 14.65),
    (23.052, 0.605, 13.443),
    (23.514, 1.721, 0),
    (23.052, 0.605, -13.443),
    (21.218, -3.823, -14.65),
    (19.384, -8.251, -13.443),
    (18.922, -9.366, 0),
    (19.384, -8.251, 13.443),
]))
fillet2.Radius = 0.5

doc.recompute()
